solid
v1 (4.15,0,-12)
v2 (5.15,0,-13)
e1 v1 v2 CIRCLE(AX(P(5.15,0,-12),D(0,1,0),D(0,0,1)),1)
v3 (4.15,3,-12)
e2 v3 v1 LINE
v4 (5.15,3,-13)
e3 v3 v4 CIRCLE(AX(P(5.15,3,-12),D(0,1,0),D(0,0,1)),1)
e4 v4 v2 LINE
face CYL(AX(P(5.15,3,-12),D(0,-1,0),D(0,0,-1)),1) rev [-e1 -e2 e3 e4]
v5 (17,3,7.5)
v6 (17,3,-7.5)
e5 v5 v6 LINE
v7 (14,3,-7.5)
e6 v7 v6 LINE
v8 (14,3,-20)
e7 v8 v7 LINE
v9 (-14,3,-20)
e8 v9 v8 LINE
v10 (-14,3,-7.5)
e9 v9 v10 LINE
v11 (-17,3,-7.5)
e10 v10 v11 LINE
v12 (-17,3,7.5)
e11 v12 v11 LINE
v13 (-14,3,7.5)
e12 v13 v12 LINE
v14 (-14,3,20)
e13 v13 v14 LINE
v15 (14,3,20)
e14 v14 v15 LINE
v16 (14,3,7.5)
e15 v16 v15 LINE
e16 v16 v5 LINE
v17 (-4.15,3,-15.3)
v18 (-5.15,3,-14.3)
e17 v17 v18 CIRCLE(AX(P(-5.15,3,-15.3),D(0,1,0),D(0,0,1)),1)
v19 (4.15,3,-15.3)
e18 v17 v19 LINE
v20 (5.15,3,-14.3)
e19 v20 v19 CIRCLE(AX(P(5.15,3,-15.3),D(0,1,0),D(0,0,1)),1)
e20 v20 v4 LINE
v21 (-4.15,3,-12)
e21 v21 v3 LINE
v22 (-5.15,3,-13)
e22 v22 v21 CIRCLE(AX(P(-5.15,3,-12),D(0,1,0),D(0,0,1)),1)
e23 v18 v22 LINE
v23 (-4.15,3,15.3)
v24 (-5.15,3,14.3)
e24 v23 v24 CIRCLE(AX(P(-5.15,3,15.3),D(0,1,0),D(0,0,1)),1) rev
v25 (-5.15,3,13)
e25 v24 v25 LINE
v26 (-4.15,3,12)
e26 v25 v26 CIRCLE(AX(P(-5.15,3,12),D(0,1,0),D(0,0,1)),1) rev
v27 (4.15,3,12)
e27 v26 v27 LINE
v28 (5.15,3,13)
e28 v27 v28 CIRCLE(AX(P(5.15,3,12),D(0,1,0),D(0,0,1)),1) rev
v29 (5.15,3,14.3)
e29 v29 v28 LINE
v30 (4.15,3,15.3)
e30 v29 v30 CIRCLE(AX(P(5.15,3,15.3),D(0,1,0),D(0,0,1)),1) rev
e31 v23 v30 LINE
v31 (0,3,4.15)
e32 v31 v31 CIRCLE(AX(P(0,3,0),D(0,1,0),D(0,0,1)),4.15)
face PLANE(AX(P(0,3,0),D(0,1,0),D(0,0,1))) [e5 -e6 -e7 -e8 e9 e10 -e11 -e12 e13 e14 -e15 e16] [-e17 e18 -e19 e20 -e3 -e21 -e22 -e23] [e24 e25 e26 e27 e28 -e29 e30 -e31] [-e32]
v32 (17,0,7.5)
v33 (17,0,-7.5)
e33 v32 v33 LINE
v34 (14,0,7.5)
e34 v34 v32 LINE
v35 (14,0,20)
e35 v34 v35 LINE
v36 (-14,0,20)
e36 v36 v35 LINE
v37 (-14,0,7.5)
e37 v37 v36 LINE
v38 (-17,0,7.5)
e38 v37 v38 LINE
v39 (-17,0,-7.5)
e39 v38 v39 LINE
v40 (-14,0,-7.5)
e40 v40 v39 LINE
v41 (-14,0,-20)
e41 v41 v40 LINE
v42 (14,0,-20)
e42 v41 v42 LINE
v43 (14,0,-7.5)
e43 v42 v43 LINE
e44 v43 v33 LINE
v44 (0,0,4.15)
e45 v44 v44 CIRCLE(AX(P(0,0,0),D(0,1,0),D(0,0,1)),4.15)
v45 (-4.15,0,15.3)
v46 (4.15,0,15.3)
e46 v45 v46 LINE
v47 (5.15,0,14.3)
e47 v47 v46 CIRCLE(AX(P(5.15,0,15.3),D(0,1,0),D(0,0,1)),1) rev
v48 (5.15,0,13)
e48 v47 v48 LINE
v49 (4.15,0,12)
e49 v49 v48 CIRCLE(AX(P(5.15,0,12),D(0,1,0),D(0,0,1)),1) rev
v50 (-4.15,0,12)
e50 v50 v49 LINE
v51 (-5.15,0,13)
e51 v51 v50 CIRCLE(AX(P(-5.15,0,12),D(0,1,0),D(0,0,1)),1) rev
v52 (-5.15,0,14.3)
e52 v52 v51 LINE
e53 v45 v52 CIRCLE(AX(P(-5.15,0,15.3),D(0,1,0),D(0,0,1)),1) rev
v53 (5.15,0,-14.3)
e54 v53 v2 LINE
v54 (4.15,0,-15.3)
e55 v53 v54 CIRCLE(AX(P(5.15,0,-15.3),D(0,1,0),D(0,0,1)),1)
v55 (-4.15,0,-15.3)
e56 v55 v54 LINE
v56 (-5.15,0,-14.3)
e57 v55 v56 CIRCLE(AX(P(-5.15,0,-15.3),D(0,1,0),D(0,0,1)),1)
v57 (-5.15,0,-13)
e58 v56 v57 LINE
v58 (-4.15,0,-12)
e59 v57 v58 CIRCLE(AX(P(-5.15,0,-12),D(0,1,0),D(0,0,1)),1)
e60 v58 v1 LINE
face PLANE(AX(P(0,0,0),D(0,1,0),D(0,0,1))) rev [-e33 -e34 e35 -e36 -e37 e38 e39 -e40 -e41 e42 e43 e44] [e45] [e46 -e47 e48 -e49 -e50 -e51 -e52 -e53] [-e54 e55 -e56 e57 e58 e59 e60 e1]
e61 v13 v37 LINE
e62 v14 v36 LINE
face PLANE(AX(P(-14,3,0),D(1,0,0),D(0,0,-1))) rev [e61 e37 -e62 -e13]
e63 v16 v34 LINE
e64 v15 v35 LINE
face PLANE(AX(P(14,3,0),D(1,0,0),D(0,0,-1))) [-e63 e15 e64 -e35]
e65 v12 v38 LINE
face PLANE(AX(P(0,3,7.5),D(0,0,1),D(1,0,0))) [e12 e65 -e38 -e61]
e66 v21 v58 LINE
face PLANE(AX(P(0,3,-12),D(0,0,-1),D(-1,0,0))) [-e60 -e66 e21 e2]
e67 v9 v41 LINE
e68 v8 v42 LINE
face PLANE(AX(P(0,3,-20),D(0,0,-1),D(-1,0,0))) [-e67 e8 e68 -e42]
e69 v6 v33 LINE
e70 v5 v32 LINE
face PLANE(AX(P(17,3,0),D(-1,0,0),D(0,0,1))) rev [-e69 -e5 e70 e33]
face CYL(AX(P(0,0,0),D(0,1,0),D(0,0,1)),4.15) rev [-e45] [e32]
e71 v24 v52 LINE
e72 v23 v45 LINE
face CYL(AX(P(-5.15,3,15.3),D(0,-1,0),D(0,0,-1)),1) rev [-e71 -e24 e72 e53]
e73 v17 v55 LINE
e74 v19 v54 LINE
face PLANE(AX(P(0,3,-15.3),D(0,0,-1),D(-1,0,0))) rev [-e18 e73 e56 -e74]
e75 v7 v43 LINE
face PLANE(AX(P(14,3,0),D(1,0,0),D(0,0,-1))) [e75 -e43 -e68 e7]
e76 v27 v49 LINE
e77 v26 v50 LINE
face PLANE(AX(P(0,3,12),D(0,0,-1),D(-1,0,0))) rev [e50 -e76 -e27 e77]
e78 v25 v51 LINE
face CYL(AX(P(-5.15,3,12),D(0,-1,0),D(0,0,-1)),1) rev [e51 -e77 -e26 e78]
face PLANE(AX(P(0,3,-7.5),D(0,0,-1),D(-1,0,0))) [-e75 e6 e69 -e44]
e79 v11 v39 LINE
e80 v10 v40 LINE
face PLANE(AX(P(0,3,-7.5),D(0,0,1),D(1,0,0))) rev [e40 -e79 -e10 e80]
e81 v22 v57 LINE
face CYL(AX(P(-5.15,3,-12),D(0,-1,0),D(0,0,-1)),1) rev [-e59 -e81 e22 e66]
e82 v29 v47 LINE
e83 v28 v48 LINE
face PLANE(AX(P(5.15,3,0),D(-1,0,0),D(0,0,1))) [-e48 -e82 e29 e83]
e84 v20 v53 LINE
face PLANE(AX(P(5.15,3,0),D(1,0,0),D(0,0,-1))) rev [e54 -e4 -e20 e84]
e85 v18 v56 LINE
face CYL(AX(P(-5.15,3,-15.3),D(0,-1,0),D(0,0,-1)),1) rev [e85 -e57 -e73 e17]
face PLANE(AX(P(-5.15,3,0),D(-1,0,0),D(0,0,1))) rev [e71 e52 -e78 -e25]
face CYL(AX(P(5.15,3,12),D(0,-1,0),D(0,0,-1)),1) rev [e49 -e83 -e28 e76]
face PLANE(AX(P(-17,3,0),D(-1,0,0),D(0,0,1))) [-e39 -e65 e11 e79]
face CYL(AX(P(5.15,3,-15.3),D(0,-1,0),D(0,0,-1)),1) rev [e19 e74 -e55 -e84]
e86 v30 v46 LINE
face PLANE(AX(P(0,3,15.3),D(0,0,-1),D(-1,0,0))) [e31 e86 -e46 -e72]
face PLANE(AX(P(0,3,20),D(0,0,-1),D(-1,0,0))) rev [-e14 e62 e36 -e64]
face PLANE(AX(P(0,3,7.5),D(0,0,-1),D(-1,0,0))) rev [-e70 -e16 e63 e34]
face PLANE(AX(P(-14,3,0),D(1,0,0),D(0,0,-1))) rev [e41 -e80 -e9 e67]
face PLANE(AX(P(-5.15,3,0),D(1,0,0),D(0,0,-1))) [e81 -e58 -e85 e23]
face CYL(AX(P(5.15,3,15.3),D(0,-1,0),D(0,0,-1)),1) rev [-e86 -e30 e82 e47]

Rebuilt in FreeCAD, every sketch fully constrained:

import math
import FreeCAD as App
import Part
import Sketcher
from FreeCAD import Vector
Q = App.Units.Quantity

doc = App.newDocument("Part")
body = doc.addObject("PartDesign::Body", "Body")

# Sketch on XZ plane
sketch1 = body.newObject("Sketcher::SketchObject", "Sketch")
sketch1.AttachmentSupport = (doc.getObject("XZ_Plane"), [""])
sketch1.MapMode = "FlatFace"
sketch1.addGeometry([
    Part.LineSegment(Vector(14, -20, 0), Vector(-14, -20, 0)),  # 0
    Part.LineSegment(Vector(-14, -20, 0), Vector(-14, -7.5, 0)),  # 1
    Part.LineSegment(Vector(-14, -7.5, 0), Vector(-17, -7.5, 0)),  # 2
    Part.LineSegment(Vector(-17, -7.5, 0), Vector(-17, 7.5, 0)),  # 3
    Part.LineSegment(Vector(-17, 7.5, 0), Vector(-14, 7.5, 0)),  # 4
    Part.LineSegment(Vector(-14, 7.5, 0), Vector(-14, 20, 0)),  # 5
    Part.LineSegment(Vector(-14, 20, 0), Vector(14, 20, 0)),  # 6
    Part.LineSegment(Vector(14, 20, 0), Vector(14, 7.5, 0)),  # 7
    Part.LineSegment(Vector(14, 7.5, 0), Vector(17, 7.5, 0)),  # 8
    Part.LineSegment(Vector(17, 7.5, 0), Vector(17, -7.5, 0)),  # 9
    Part.LineSegment(Vector(17, -7.5, 0), Vector(14, -7.5, 0)),  # 10
    Part.LineSegment(Vector(14, -7.5, 0), Vector(14, -20, 0)),  # 11
    Part.LineSegment(Vector(-5.2, 14.3, 0), Vector(-5.2, 13, 0)),  # 12
    Part.ArcOfCircle(Part.Circle(Vector(-5.2, 12, 0), Vector(0, 0, 1), 1), math.radians(90), math.radians(360)),  # 13
    Part.LineSegment(Vector(-4.2, 12, 0), Vector(4.2, 12, 0)),  # 14
    Part.ArcOfCircle(Part.Circle(Vector(5.2, 12, 0), Vector(0, 0, 1), 1), math.radians(180), math.radians(450)),  # 15
    Part.LineSegment(Vector(5.2, 13, 0), Vector(5.2, 14.3, 0)),  # 16
    Part.ArcOfCircle(Part.Circle(Vector(5.2, 15.3, 0), Vector(0, 0, 1), 1), math.radians(-90), math.radians(180)),  # 17
    Part.LineSegment(Vector(4.2, 15.3, 0), Vector(-4.2, 15.3, 0)),  # 18
    Part.ArcOfCircle(Part.Circle(Vector(-5.2, 15.3, 0), Vector(0, 0, 1), 1), math.radians(0), math.radians(270)),  # 19
    Part.LineSegment(Vector(-5.2, -13, 0), Vector(-5.2, -14.3, 0)),  # 20
    Part.ArcOfCircle(Part.Circle(Vector(-5.2, -15.3, 0), Vector(0, 0, 1), 1), math.radians(90), math.radians(360)),  # 21
    Part.LineSegment(Vector(-4.2, -15.3, 0), Vector(4.2, -15.3, 0)),  # 22
    Part.ArcOfCircle(Part.Circle(Vector(5.2, -15.3, 0), Vector(0, 0, 1), 1), math.radians(180), math.radians(450)),  # 23
    Part.LineSegment(Vector(5.2, -14.3, 0), Vector(5.2, -13, 0)),  # 24
    Part.ArcOfCircle(Part.Circle(Vector(5.2, -12, 0), Vector(0, 0, 1), 1), math.radians(-90), math.radians(180)),  # 25
    Part.LineSegment(Vector(4.2, -12, 0), Vector(-4.2, -12, 0)),  # 26
    Part.ArcOfCircle(Part.Circle(Vector(-5.2, -12, 0), Vector(0, 0, 1), 1), math.radians(0), math.radians(270)),  # 27
], False)
sketch1.addConstraint([
    Sketcher.Constraint("Coincident", 0, 2, 1, 1),
    Sketcher.Constraint("Coincident", 1, 2, 2, 1),
    Sketcher.Constraint("Coincident", 2, 2, 3, 1),
    Sketcher.Constraint("Coincident", 3, 2, 4, 1),
    Sketcher.Constraint("Coincident", 4, 2, 5, 1),
    Sketcher.Constraint("Coincident", 5, 2, 6, 1),
    Sketcher.Constraint("Coincident", 6, 2, 7, 1),
    Sketcher.Constraint("Coincident", 7, 2, 8, 1),
    Sketcher.Constraint("Coincident", 8, 2, 9, 1),
    Sketcher.Constraint("Coincident", 9, 2, 10, 1),
    Sketcher.Constraint("Coincident", 10, 2, 11, 1),
    Sketcher.Constraint("Coincident", 11, 2, 0, 1),
    Sketcher.Constraint("Coincident", 12, 2, 13, 1),
    Sketcher.Constraint("Coincident", 13, 2, 14, 1),
    Sketcher.Constraint("Coincident", 14, 2, 15, 1),
    Sketcher.Constraint("Coincident", 15, 2, 16, 1),
    Sketcher.Constraint("Coincident", 16, 2, 17, 1),
    Sketcher.Constraint("Coincident", 17, 2, 18, 1),
    Sketcher.Constraint("Coincident", 18, 2, 19, 1),
    Sketcher.Constraint("Coincident", 19, 2, 12, 1),
    Sketcher.Constraint("Coincident", 20, 2, 21, 1),
    Sketcher.Constraint("Coincident", 21, 2, 22, 1),
    Sketcher.Constraint("Coincident", 22, 2, 23, 1),
    Sketcher.Constraint("Coincident", 23, 2, 24, 1),
    Sketcher.Constraint("Coincident", 24, 2, 25, 1),
    Sketcher.Constraint("Coincident", 25, 2, 26, 1),
    Sketcher.Constraint("Coincident", 26, 2, 27, 1),
    Sketcher.Constraint("Coincident", 27, 2, 20, 1),
    Sketcher.Constraint("Horizontal", 0),
    Sketcher.Constraint("Vertical", 1),
    Sketcher.Constraint("Horizontal", 2),
    Sketcher.Constraint("Vertical", 3),
    Sketcher.Constraint("Horizontal", 4),
    Sketcher.Constraint("Vertical", 5),
    Sketcher.Constraint("Horizontal", 6),
    Sketcher.Constraint("Vertical", 7),
    Sketcher.Constraint("Horizontal", 8),
    Sketcher.Constraint("Vertical", 9),
    Sketcher.Constraint("Horizontal", 10),
    Sketcher.Constraint("Vertical", 11),
    Sketcher.Constraint("Vertical", 12),
    Sketcher.Constraint("Horizontal", 14),
    Sketcher.Constraint("Vertical", 16),
    Sketcher.Constraint("Horizontal", 18),
    Sketcher.Constraint("Vertical", 20),
    Sketcher.Constraint("Horizontal", 22),
    Sketcher.Constraint("Vertical", 24),
    Sketcher.Constraint("Horizontal", 26),
    Sketcher.Constraint("Equal", 13, 15),
    Sketcher.Constraint("Equal", 15, 17),
    Sketcher.Constraint("Equal", 17, 19),
    Sketcher.Constraint("Equal", 19, 21),
    Sketcher.Constraint("Equal", 21, 23),
    Sketcher.Constraint("Equal", 23, 25),
    Sketcher.Constraint("Equal", 25, 27),
    Sketcher.Constraint("Symmetric", 17, 3, 21, 3, -1, 1),
    Sketcher.Constraint("Symmetric", 19, 3, 23, 3, -1, 1),
    Sketcher.Constraint("Symmetric", 13, 3, 25, 3, -1, 1),
    Sketcher.Constraint("Symmetric", 15, 3, 27, 3, -1, 1),
    Sketcher.Constraint("Symmetric", 0, 2, 6, 2, -1, 1),
    Sketcher.Constraint("Symmetric", 2, 2, 8, 2, -1, 1),
    Sketcher.Constraint("Symmetric", 4, 2, 10, 2, -1, 1),
    Sketcher.Constraint("Symmetric", 13, 3, 15, 3, -2),
    Sketcher.Constraint("Symmetric", 17, 3, 19, 3, -2),
    Sketcher.Constraint("Symmetric", 4, 2, 7, 2, -2),
    Sketcher.Constraint("Horizontal", 15, 3, 13, 2),
    Sketcher.Constraint("Horizontal", 19, 3, 17, 2),
    Sketcher.Constraint("Horizontal", 23, 3, 21, 2),
    Sketcher.Constraint("Horizontal", 27, 3, 25, 2),
    Sketcher.Constraint("Vertical", 15, 3, 17, 3),
    Sketcher.Constraint("Vertical", 27, 3, 12, 2),
    Sketcher.Constraint("Vertical", 25, 3, 15, 2),
    Sketcher.Constraint("Vertical", 19, 2, 20, 2),
    Sketcher.Constraint("Vertical", 16, 2, 23, 2),
    Sketcher.Constraint("Radius", 13, Q("1 mm")),
    Sketcher.Constraint("DistanceX", 0, 2, 0, 1, Q("28 mm")),
    Sketcher.Constraint("DistanceX", 2, 2, 2, 1, Q("3 mm")),
    Sketcher.Constraint("DistanceY", 3, 1, 3, 2, Q("15 mm")),
    Sketcher.Constraint("DistanceX", 14, 1, 14, 2, Q("8.3 mm")),
    Sketcher.Constraint("DistanceY", 1, 1, 1, 2, Q("12.5 mm")),
    Sketcher.Constraint("DistanceY", 12, 2, 12, 1, Q("1.3 mm")),
    Sketcher.Constraint("DistanceY", -1, 1, 13, 3, Q("12 mm")),
])
pad1 = body.newObject("PartDesign::Pad", "Pad")
pad1.Profile = sketch1
pad1.Length = 3
pad1.Reversed = True

# Sketch on XZ plane
sketch2 = body.newObject("Sketcher::SketchObject", "Sketch001")
sketch2.AttachmentSupport = (doc.getObject("XZ_Plane"), [""])
sketch2.MapMode = "FlatFace"
sketch2.AttachmentOffset = App.Placement(Vector(0, 0, -3), App.Rotation())
sketch2.addGeometry(Part.Circle(Vector(0, 0, 0), Vector(0, 0, 1), 4.2), False)
sketch2.addConstraint([
    Sketcher.Constraint("Coincident", 0, 3, -1, 1),
    Sketcher.Constraint("Diameter", 0, Q("8.3 mm")),
])
pocket1 = body.newObject("PartDesign::Pocket", "Pocket")
pocket1.Profile = sketch2
pocket1.Length = 3
pocket1.Reversed = True

doc.recompute()
